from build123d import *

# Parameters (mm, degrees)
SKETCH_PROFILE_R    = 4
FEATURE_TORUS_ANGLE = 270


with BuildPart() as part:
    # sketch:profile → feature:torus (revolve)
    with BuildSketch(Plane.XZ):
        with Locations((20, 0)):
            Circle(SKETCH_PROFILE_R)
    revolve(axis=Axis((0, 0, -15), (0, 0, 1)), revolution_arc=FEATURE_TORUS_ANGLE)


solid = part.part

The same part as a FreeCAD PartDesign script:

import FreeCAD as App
import Part
import Sketcher

V = App.Vector
Q = App.Units.Quantity

doc = App.newDocument("Part")
params = doc.addObject("Spreadsheet::Sheet", "Params")
for row, (alias, value) in enumerate([
    ("sketch1_diameter", "8 mm"),
    ("revolution_angle", "270 deg"),
], start=1):
    params.set(f"A{row}", alias)
    params.set(f"B{row}", "=" + value)
    params.setAlias(f"B{row}", alias)

body = doc.addObject("PartDesign::Body", "Body")

sketch1 = body.newObject("Sketcher::SketchObject", "Sketch")
sketch1.AttachmentSupport = (doc.getObject("XZ_Plane"), [""])
sketch1.MapMode = "FlatFace"
sketch1.addGeometry(Part.Circle(V(20, 0, 0), V(0, 0, 1), 4), False)
sketch1.addConstraint([
    Sketcher.Constraint("PointOnObject", 0, 3, -1),
    Sketcher.Constraint("Diameter", 0, Q("8 mm")),
    Sketcher.Constraint("DistanceX", -1, 1, 0, 3, Q("20 mm")),
])
sketch1.setExpression("Constraints[1]", "Params.sketch1_diameter")
revolution = body.newObject("PartDesign::Revolution", "Revolution")
revolution.Profile = sketch1
revolution.ReferenceAxis = (sketch1, ["V_Axis"])
revolution.setExpression("Angle", "Params.revolution_angle")

doc.recompute()
